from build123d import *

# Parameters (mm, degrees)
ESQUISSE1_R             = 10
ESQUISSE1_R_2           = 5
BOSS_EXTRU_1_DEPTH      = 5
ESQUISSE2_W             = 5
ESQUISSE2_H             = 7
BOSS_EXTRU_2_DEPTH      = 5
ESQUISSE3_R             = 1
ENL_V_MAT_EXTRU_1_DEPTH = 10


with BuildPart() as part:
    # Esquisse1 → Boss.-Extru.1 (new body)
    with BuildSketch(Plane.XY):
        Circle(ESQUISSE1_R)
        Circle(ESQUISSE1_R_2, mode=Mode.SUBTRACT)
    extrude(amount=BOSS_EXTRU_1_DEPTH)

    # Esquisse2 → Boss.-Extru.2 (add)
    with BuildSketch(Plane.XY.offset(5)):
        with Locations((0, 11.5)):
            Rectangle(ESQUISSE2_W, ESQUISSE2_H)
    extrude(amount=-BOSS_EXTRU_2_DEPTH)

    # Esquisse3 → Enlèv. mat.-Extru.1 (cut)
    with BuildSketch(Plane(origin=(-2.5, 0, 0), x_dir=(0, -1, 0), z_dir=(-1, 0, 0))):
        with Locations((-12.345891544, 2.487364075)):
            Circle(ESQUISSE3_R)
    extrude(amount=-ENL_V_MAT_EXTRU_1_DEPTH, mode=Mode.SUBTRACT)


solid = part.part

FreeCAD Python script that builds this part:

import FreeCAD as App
import Part
import Sketcher
Q = App.Units.Quantity

doc = App.newDocument("Part")
body = doc.addObject("PartDesign::Body", "Body")

# Sketch on XY plane
sketch1 = doc.addObject("Sketcher::SketchObject", "Sketch")
body.addObject(sketch1)
sketch1.AttachmentSupport = (doc.XY_Plane, [""])
sketch1.MapMode = "FlatFace"
sketch1.addGeometry(Part.Circle(App.Vector(0, 0, 0), App.Vector(0, 0, 1), 10), False)
sketch1.addGeometry(Part.Circle(App.Vector(0, 0, 0), App.Vector(0, 0, 1), 5), False)
sketch1.addConstraint(Sketcher.Constraint("Coincident", 0, 3, -1, 1))
sketch1.addConstraint(Sketcher.Constraint("Coincident", 1, 3, -1, 1))
sketch1.addConstraint(Sketcher.Constraint("Diameter", 0, Q("20 mm")))
sketch1.addConstraint(Sketcher.Constraint("Diameter", 1, Q("10 mm")))
pad1 = doc.addObject("PartDesign::Pad", "Pad")
body.addObject(pad1)
pad1.Profile = sketch1
pad1.Length = 5

# Sketch on XY plane
sketch2 = doc.addObject("Sketcher::SketchObject", "Sketch001")
body.addObject(sketch2)
sketch2.AttachmentSupport = (doc.XY_Plane, [""])
sketch2.MapMode = "FlatFace"
sketch2.AttachmentOffset = App.Placement(App.Vector(0, 0, 5), App.Rotation())
sketch2.addGeometry(Part.LineSegment(App.Vector(-2, 15, 0), App.Vector(-2, 8, 0)), False)
sketch2.addGeometry(Part.LineSegment(App.Vector(-2, 8, 0), App.Vector(2, 8, 0)), False)
sketch2.addGeometry(Part.LineSegment(App.Vector(2, 8, 0), App.Vector(2, 15, 0)), False)
sketch2.addGeometry(Part.LineSegment(App.Vector(2, 15, 0), App.Vector(-2, 15, 0)), False)
sketch2.addConstraint(Sketcher.Constraint("Coincident", 0, 2, 1, 1))
sketch2.addConstraint(Sketcher.Constraint("Coincident", 1, 2, 2, 1))
sketch2.addConstraint(Sketcher.Constraint("Coincident", 2, 2, 3, 1))
sketch2.addConstraint(Sketcher.Constraint("Coincident", 3, 2, 0, 1))
sketch2.addConstraint(Sketcher.Constraint("Vertical", 0))
sketch2.addConstraint(Sketcher.Constraint("Horizontal", 1))
sketch2.addConstraint(Sketcher.Constraint("Vertical", 2))
sketch2.addConstraint(Sketcher.Constraint("Horizontal", 3))
sketch2.addConstraint(Sketcher.Constraint("DistanceX", 1, 1, 1, 2, Q("5 mm")))
sketch2.addConstraint(Sketcher.Constraint("DistanceY", 0, 2, 0, 1, Q("7 mm")))
sketch2.addConstraint(Sketcher.Constraint("DistanceY", -1, 1, 0, 2, Q("8 mm")))
sketch2.addConstraint(Sketcher.Constraint("DistanceX", 0, 2, -1, 1, Q("2.5 mm")))
pad2 = doc.addObject("PartDesign::Pad", "Pad001")
body.addObject(pad2)
pad2.Profile = sketch2
pad2.Length = 5
pad2.Reversed = True

# Sketch on YZ plane
sketch3 = doc.addObject("Sketcher::SketchObject", "Sketch002")
body.addObject(sketch3)
sketch3.AttachmentSupport = (doc.YZ_Plane, [""])
sketch3.MapMode = "FlatFace"
sketch3.AttachmentOffset = App.Placement(App.Vector(0, 0, -2.5), App.Rotation())
sketch3.addGeometry(Part.Circle(App.Vector(12.3, 2.5, 0), App.Vector(0, 0, 1), 1), False)
sketch3.addConstraint(Sketcher.Constraint("Diameter", 0, Q("2 mm")))
sketch3.addConstraint(Sketcher.Constraint("DistanceX", -1, 1, 0, 3, Q("12.345892 mm")))
sketch3.addConstraint(Sketcher.Constraint("DistanceY", -1, 1, 0, 3, Q("2.487364 mm")))
pocket1 = doc.addObject("PartDesign::Pocket", "Pocket")
body.addObject(pocket1)
pocket1.Profile = sketch3
pocket1.Length = 10
pocket1.Reversed = True

doc.recompute()
